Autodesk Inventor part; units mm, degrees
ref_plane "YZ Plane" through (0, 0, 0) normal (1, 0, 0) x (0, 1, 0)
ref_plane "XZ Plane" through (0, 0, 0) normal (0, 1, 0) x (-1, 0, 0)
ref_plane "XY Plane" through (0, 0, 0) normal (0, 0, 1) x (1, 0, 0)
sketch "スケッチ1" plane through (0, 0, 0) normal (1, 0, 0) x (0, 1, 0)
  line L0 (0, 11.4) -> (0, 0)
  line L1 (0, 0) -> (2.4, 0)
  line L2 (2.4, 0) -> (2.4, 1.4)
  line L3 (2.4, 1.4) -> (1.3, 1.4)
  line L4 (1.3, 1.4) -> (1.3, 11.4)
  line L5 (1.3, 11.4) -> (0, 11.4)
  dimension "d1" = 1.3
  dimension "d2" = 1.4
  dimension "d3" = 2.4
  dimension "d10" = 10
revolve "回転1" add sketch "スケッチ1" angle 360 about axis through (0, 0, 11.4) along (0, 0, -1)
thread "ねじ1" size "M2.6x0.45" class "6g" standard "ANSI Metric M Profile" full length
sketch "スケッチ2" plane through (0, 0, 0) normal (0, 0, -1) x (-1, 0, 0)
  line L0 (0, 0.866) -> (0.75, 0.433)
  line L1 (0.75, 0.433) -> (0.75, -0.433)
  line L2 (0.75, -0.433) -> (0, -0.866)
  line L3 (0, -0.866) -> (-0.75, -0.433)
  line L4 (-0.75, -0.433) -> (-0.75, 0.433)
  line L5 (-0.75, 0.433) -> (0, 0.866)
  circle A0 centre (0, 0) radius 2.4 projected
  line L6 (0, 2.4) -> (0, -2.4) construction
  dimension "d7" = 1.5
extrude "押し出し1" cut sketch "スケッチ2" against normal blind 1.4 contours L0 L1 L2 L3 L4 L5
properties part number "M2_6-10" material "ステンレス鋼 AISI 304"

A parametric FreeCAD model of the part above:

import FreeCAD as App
import Part
import Sketcher

V = App.Vector
Q = App.Units.Quantity

doc = App.newDocument("Part")
params = doc.addObject("Spreadsheet::Sheet", "Params")
for row, (alias, value) in enumerate([
    ("sketch1_height", "10 mm"),
    ("sketch1_width", "1.3 mm"),
    ("sketch1_width2", "2.4 mm"),
    ("sketch1_height2", "1.4 mm"),
    ("revolution_angle", "360 deg"),
    ("pocket1_length", "1.4 mm"),
], start=1):
    params.set(f"A{row}", alias)
    params.set(f"B{row}", "=" + value)
    params.setAlias(f"B{row}", alias)

body = doc.addObject("PartDesign::Body", "Body")

# Sketch on YZ plane
sketch1 = doc.addObject("Sketcher::SketchObject", "Sketch")
body.addObject(sketch1)
sketch1.AttachmentSupport = (doc.YZ_Plane, [""])
sketch1.MapMode = "FlatFace"
sketch1.addGeometry(Part.LineSegment(V(1.3, 11.4, 0), V(0, 11.4, 0)), False)
sketch1.addGeometry(Part.LineSegment(V(0, 11.4, 0), V(0, 0, 0)), False)
sketch1.addGeometry(Part.LineSegment(V(0, 0, 0), V(2.4, 0, 0)), False)
sketch1.addGeometry(Part.LineSegment(V(2.4, 0, 0), V(2.4, 1.4, 0)), False)
sketch1.addGeometry(Part.LineSegment(V(2.4, 1.4, 0), V(1.3, 1.4, 0)), False)
sketch1.addGeometry(Part.LineSegment(V(1.3, 1.4, 0), V(1.3, 11.4, 0)), False)
sketch1.addConstraint(Sketcher.Constraint("Coincident", 0, 2, 1, 1))
sketch1.addConstraint(Sketcher.Constraint("Coincident", 1, 2, 2, 1))
sketch1.addConstraint(Sketcher.Constraint("Coincident", 2, 2, 3, 1))
sketch1.addConstraint(Sketcher.Constraint("Coincident", 3, 2, 4, 1))
sketch1.addConstraint(Sketcher.Constraint("Coincident", 4, 2, 5, 1))
sketch1.addConstraint(Sketcher.Constraint("Coincident", 5, 2, 0, 1))
sketch1.addConstraint(Sketcher.Constraint("Horizontal", 0))
sketch1.addConstraint(Sketcher.Constraint("Vertical", 1))
sketch1.addConstraint(Sketcher.Constraint("Horizontal", 2))
sketch1.addConstraint(Sketcher.Constraint("Vertical", 3))
sketch1.addConstraint(Sketcher.Constraint("Horizontal", 4))
sketch1.addConstraint(Sketcher.Constraint("Vertical", 5))
sketch1.addConstraint(Sketcher.Constraint("Coincident", 1, 2, -1, 1))
sketch1.addConstraint(Sketcher.Constraint("DistanceY", 5, 1, 5, 2, Q("10 mm")))
sketch1.addConstraint(Sketcher.Constraint("DistanceX", 0, 2, 0, 1, Q("1.3 mm")))
sketch1.addConstraint(Sketcher.Constraint("DistanceX", 2, 1, 2, 2, Q("2.4 mm")))
sketch1.addConstraint(Sketcher.Constraint("DistanceY", 3, 1, 3, 2, Q("1.4 mm")))
sketch1.setExpression("Constraints[13]", "Params.sketch1_height")
sketch1.setExpression("Constraints[14]", "Params.sketch1_width")
sketch1.setExpression("Constraints[15]", "Params.sketch1_width2")
sketch1.setExpression("Constraints[16]", "Params.sketch1_height2")
revolution = doc.addObject("PartDesign::Revolution", "Revolution")
body.addObject(revolution)
revolution.Profile = sketch1
revolution.ReferenceAxis = (sketch1, ["V_Axis"])
revolution.setExpression("Angle", "Params.revolution_angle")

# Sketch on XY plane
sketch2 = doc.addObject("Sketcher::SketchObject", "Sketch001")
body.addObject(sketch2)
sketch2.AttachmentSupport = (doc.XY_Plane, [""])
sketch2.MapMode = "FlatFace"
sketch2.addGeometry(Part.LineSegment(V(-0.75, 0.433, 0), V(0, 0.866, 0)), False)
sketch2.addGeometry(Part.LineSegment(V(0, 0.866, 0), V(0.75, 0.433, 0)), False)
sketch2.addGeometry(Part.LineSegment(V(0.75, 0.433, 0), V(0.75, -0.433, 0)), False)
sketch2.addGeometry(Part.LineSegment(V(0.75, -0.433, 0), V(0, -0.866, 0)), False)
sketch2.addGeometry(Part.LineSegment(V(0, -0.866, 0), V(-0.75, -0.433, 0)), False)
sketch2.addGeometry(Part.LineSegment(V(-0.75, -0.433, 0), V(-0.75, 0.433, 0)), False)
sketch2.addConstraint(Sketcher.Constraint("Coincident", 0, 2, 1, 1))
sketch2.addConstraint(Sketcher.Constraint("Coincident", 1, 2, 2, 1))
sketch2.addConstraint(Sketcher.Constraint("Coincident", 2, 2, 3, 1))
sketch2.addConstraint(Sketcher.Constraint("Coincident", 3, 2, 4, 1))
sketch2.addConstraint(Sketcher.Constraint("Coincident", 4, 2, 5, 1))
sketch2.addConstraint(Sketcher.Constraint("Coincident", 5, 2, 0, 1))
sketch2.addConstraint(Sketcher.Constraint("Vertical", 2))
sketch2.addConstraint(Sketcher.Constraint("Vertical", 5))
sketch2.addConstraint(Sketcher.Constraint("Symmetric", 0, 2, 3, 2, -1, 1))
sketch2.addConstraint(Sketcher.Constraint("Symmetric", 1, 2, 4, 2, -1, 1))
sketch2.addConstraint(Sketcher.Constraint("PointOnObject", 0, 2, -2))
sketch2.addConstraint(Sketcher.Constraint("Parallel", 0, 3))
sketch2.addConstraint(Sketcher.Constraint("Horizontal", 2, 2, 4, 2))
sketch2.addConstraint(Sketcher.Constraint("DistanceX", 4, 2, 2, 2, Q("1.5 mm")))
sketch2.addConstraint(Sketcher.Constraint("Angle", 0, Q("29.9993 deg")))
sketch2.addConstraint(Sketcher.Constraint("DistanceY", 2, 2, 2, 1, Q("0.866 mm")))
pocket1 = doc.addObject("PartDesign::Pocket", "Pocket")
body.addObject(pocket1)
pocket1.Profile = sketch2
pocket1.setExpression("Length", "Params.pocket1_length")
pocket1.Reversed = True

doc.recompute()
